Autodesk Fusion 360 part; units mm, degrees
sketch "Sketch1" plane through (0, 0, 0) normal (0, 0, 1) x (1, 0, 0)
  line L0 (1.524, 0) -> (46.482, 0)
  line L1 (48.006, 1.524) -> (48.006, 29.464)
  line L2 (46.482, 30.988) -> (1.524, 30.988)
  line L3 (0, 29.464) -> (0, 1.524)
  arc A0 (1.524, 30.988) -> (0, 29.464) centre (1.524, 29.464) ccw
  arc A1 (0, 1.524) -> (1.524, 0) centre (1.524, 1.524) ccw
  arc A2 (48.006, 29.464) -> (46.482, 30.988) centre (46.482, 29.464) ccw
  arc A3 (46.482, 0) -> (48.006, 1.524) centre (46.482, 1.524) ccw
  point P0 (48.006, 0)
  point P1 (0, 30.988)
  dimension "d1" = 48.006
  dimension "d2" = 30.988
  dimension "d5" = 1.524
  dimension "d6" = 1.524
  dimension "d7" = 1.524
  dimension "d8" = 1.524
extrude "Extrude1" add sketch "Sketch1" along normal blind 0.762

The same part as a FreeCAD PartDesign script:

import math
import FreeCAD as App
import Part
import Sketcher
from FreeCAD import Vector
Q = App.Units.Quantity

doc = App.newDocument("Part")
body = doc.addObject("PartDesign::Body", "Body")

# Sketch on XY plane
sketch1 = body.newObject("Sketcher::SketchObject", "Sketch")
sketch1.AttachmentSupport = (doc.getObject("XY_Plane"), [""])
sketch1.MapMode = "FlatFace"
sketch1.addGeometry(Part.ArcOfCircle(Part.Circle(Vector(1.5, 1.5, 0), Vector(0, 0, 1), 1.5), math.radians(180), math.radians(270)), False)
sketch1.addGeometry(Part.LineSegment(Vector(1.5, 0, 0), Vector(46.5, 0, 0)), False)
sketch1.addGeometry(Part.ArcOfCircle(Part.Circle(Vector(46.5, 1.5, 0), Vector(0, 0, 1), 1.5), math.radians(-90), math.radians(0)), False)
sketch1.addGeometry(Part.LineSegment(Vector(48, 1.5, 0), Vector(48, 29.5, 0)), False)
sketch1.addGeometry(Part.ArcOfCircle(Part.Circle(Vector(46.5, 29.5, 0), Vector(0, 0, 1), 1.5), math.radians(0), math.radians(90)), False)
sketch1.addGeometry(Part.LineSegment(Vector(46.5, 31, 0), Vector(1.5, 31, 0)), False)
sketch1.addGeometry(Part.ArcOfCircle(Part.Circle(Vector(1.5, 29.5, 0), Vector(0, 0, 1), 1.5), math.radians(90), math.radians(180)), False)
sketch1.addGeometry(Part.LineSegment(Vector(0, 29.5, 0), Vector(0, 1.5, 0)), False)
sketch1.addConstraint(Sketcher.Constraint("Tangent", 0, 2, 1, 1))
sketch1.addConstraint(Sketcher.Constraint("Tangent", 1, 2, 2, 1))
sketch1.addConstraint(Sketcher.Constraint("Tangent", 2, 2, 3, 1))
sketch1.addConstraint(Sketcher.Constraint("Tangent", 3, 2, 4, 1))
sketch1.addConstraint(Sketcher.Constraint("Tangent", 4, 2, 5, 1))
sketch1.addConstraint(Sketcher.Constraint("Tangent", 5, 2, 6, 1))
sketch1.addConstraint(Sketcher.Constraint("Tangent", 6, 2, 7, 1))
sketch1.addConstraint(Sketcher.Constraint("Tangent", 7, 2, 0, 1))
sketch1.addConstraint(Sketcher.Constraint("Horizontal", 1))
sketch1.addConstraint(Sketcher.Constraint("Vertical", 3))
sketch1.addConstraint(Sketcher.Constraint("Horizontal", 5))
sketch1.addConstraint(Sketcher.Constraint("Vertical", 7))
sketch1.addConstraint(Sketcher.Constraint("Equal", 0, 2))
sketch1.addConstraint(Sketcher.Constraint("Equal", 2, 4))
sketch1.addConstraint(Sketcher.Constraint("Equal", 4, 6))
sketch1.addConstraint(Sketcher.Constraint("PointOnObject", 0, 2, -1))
sketch1.addConstraint(Sketcher.Constraint("PointOnObject", 6, 2, -2))
sketch1.addConstraint(Sketcher.Constraint("Radius", 0, Q("0.06 in")))
sketch1.addConstraint(Sketcher.Constraint("DistanceX", -1, 1, 2, 2, Q("1.89 in")))
sketch1.addConstraint(Sketcher.Constraint("DistanceY", -1, 1, 4, 2, Q("1.22 in")))
pad1 = body.newObject("PartDesign::Pad", "Pad")
pad1.Profile = sketch1
pad1.Length = Q("0.03 in")

doc.recompute()
